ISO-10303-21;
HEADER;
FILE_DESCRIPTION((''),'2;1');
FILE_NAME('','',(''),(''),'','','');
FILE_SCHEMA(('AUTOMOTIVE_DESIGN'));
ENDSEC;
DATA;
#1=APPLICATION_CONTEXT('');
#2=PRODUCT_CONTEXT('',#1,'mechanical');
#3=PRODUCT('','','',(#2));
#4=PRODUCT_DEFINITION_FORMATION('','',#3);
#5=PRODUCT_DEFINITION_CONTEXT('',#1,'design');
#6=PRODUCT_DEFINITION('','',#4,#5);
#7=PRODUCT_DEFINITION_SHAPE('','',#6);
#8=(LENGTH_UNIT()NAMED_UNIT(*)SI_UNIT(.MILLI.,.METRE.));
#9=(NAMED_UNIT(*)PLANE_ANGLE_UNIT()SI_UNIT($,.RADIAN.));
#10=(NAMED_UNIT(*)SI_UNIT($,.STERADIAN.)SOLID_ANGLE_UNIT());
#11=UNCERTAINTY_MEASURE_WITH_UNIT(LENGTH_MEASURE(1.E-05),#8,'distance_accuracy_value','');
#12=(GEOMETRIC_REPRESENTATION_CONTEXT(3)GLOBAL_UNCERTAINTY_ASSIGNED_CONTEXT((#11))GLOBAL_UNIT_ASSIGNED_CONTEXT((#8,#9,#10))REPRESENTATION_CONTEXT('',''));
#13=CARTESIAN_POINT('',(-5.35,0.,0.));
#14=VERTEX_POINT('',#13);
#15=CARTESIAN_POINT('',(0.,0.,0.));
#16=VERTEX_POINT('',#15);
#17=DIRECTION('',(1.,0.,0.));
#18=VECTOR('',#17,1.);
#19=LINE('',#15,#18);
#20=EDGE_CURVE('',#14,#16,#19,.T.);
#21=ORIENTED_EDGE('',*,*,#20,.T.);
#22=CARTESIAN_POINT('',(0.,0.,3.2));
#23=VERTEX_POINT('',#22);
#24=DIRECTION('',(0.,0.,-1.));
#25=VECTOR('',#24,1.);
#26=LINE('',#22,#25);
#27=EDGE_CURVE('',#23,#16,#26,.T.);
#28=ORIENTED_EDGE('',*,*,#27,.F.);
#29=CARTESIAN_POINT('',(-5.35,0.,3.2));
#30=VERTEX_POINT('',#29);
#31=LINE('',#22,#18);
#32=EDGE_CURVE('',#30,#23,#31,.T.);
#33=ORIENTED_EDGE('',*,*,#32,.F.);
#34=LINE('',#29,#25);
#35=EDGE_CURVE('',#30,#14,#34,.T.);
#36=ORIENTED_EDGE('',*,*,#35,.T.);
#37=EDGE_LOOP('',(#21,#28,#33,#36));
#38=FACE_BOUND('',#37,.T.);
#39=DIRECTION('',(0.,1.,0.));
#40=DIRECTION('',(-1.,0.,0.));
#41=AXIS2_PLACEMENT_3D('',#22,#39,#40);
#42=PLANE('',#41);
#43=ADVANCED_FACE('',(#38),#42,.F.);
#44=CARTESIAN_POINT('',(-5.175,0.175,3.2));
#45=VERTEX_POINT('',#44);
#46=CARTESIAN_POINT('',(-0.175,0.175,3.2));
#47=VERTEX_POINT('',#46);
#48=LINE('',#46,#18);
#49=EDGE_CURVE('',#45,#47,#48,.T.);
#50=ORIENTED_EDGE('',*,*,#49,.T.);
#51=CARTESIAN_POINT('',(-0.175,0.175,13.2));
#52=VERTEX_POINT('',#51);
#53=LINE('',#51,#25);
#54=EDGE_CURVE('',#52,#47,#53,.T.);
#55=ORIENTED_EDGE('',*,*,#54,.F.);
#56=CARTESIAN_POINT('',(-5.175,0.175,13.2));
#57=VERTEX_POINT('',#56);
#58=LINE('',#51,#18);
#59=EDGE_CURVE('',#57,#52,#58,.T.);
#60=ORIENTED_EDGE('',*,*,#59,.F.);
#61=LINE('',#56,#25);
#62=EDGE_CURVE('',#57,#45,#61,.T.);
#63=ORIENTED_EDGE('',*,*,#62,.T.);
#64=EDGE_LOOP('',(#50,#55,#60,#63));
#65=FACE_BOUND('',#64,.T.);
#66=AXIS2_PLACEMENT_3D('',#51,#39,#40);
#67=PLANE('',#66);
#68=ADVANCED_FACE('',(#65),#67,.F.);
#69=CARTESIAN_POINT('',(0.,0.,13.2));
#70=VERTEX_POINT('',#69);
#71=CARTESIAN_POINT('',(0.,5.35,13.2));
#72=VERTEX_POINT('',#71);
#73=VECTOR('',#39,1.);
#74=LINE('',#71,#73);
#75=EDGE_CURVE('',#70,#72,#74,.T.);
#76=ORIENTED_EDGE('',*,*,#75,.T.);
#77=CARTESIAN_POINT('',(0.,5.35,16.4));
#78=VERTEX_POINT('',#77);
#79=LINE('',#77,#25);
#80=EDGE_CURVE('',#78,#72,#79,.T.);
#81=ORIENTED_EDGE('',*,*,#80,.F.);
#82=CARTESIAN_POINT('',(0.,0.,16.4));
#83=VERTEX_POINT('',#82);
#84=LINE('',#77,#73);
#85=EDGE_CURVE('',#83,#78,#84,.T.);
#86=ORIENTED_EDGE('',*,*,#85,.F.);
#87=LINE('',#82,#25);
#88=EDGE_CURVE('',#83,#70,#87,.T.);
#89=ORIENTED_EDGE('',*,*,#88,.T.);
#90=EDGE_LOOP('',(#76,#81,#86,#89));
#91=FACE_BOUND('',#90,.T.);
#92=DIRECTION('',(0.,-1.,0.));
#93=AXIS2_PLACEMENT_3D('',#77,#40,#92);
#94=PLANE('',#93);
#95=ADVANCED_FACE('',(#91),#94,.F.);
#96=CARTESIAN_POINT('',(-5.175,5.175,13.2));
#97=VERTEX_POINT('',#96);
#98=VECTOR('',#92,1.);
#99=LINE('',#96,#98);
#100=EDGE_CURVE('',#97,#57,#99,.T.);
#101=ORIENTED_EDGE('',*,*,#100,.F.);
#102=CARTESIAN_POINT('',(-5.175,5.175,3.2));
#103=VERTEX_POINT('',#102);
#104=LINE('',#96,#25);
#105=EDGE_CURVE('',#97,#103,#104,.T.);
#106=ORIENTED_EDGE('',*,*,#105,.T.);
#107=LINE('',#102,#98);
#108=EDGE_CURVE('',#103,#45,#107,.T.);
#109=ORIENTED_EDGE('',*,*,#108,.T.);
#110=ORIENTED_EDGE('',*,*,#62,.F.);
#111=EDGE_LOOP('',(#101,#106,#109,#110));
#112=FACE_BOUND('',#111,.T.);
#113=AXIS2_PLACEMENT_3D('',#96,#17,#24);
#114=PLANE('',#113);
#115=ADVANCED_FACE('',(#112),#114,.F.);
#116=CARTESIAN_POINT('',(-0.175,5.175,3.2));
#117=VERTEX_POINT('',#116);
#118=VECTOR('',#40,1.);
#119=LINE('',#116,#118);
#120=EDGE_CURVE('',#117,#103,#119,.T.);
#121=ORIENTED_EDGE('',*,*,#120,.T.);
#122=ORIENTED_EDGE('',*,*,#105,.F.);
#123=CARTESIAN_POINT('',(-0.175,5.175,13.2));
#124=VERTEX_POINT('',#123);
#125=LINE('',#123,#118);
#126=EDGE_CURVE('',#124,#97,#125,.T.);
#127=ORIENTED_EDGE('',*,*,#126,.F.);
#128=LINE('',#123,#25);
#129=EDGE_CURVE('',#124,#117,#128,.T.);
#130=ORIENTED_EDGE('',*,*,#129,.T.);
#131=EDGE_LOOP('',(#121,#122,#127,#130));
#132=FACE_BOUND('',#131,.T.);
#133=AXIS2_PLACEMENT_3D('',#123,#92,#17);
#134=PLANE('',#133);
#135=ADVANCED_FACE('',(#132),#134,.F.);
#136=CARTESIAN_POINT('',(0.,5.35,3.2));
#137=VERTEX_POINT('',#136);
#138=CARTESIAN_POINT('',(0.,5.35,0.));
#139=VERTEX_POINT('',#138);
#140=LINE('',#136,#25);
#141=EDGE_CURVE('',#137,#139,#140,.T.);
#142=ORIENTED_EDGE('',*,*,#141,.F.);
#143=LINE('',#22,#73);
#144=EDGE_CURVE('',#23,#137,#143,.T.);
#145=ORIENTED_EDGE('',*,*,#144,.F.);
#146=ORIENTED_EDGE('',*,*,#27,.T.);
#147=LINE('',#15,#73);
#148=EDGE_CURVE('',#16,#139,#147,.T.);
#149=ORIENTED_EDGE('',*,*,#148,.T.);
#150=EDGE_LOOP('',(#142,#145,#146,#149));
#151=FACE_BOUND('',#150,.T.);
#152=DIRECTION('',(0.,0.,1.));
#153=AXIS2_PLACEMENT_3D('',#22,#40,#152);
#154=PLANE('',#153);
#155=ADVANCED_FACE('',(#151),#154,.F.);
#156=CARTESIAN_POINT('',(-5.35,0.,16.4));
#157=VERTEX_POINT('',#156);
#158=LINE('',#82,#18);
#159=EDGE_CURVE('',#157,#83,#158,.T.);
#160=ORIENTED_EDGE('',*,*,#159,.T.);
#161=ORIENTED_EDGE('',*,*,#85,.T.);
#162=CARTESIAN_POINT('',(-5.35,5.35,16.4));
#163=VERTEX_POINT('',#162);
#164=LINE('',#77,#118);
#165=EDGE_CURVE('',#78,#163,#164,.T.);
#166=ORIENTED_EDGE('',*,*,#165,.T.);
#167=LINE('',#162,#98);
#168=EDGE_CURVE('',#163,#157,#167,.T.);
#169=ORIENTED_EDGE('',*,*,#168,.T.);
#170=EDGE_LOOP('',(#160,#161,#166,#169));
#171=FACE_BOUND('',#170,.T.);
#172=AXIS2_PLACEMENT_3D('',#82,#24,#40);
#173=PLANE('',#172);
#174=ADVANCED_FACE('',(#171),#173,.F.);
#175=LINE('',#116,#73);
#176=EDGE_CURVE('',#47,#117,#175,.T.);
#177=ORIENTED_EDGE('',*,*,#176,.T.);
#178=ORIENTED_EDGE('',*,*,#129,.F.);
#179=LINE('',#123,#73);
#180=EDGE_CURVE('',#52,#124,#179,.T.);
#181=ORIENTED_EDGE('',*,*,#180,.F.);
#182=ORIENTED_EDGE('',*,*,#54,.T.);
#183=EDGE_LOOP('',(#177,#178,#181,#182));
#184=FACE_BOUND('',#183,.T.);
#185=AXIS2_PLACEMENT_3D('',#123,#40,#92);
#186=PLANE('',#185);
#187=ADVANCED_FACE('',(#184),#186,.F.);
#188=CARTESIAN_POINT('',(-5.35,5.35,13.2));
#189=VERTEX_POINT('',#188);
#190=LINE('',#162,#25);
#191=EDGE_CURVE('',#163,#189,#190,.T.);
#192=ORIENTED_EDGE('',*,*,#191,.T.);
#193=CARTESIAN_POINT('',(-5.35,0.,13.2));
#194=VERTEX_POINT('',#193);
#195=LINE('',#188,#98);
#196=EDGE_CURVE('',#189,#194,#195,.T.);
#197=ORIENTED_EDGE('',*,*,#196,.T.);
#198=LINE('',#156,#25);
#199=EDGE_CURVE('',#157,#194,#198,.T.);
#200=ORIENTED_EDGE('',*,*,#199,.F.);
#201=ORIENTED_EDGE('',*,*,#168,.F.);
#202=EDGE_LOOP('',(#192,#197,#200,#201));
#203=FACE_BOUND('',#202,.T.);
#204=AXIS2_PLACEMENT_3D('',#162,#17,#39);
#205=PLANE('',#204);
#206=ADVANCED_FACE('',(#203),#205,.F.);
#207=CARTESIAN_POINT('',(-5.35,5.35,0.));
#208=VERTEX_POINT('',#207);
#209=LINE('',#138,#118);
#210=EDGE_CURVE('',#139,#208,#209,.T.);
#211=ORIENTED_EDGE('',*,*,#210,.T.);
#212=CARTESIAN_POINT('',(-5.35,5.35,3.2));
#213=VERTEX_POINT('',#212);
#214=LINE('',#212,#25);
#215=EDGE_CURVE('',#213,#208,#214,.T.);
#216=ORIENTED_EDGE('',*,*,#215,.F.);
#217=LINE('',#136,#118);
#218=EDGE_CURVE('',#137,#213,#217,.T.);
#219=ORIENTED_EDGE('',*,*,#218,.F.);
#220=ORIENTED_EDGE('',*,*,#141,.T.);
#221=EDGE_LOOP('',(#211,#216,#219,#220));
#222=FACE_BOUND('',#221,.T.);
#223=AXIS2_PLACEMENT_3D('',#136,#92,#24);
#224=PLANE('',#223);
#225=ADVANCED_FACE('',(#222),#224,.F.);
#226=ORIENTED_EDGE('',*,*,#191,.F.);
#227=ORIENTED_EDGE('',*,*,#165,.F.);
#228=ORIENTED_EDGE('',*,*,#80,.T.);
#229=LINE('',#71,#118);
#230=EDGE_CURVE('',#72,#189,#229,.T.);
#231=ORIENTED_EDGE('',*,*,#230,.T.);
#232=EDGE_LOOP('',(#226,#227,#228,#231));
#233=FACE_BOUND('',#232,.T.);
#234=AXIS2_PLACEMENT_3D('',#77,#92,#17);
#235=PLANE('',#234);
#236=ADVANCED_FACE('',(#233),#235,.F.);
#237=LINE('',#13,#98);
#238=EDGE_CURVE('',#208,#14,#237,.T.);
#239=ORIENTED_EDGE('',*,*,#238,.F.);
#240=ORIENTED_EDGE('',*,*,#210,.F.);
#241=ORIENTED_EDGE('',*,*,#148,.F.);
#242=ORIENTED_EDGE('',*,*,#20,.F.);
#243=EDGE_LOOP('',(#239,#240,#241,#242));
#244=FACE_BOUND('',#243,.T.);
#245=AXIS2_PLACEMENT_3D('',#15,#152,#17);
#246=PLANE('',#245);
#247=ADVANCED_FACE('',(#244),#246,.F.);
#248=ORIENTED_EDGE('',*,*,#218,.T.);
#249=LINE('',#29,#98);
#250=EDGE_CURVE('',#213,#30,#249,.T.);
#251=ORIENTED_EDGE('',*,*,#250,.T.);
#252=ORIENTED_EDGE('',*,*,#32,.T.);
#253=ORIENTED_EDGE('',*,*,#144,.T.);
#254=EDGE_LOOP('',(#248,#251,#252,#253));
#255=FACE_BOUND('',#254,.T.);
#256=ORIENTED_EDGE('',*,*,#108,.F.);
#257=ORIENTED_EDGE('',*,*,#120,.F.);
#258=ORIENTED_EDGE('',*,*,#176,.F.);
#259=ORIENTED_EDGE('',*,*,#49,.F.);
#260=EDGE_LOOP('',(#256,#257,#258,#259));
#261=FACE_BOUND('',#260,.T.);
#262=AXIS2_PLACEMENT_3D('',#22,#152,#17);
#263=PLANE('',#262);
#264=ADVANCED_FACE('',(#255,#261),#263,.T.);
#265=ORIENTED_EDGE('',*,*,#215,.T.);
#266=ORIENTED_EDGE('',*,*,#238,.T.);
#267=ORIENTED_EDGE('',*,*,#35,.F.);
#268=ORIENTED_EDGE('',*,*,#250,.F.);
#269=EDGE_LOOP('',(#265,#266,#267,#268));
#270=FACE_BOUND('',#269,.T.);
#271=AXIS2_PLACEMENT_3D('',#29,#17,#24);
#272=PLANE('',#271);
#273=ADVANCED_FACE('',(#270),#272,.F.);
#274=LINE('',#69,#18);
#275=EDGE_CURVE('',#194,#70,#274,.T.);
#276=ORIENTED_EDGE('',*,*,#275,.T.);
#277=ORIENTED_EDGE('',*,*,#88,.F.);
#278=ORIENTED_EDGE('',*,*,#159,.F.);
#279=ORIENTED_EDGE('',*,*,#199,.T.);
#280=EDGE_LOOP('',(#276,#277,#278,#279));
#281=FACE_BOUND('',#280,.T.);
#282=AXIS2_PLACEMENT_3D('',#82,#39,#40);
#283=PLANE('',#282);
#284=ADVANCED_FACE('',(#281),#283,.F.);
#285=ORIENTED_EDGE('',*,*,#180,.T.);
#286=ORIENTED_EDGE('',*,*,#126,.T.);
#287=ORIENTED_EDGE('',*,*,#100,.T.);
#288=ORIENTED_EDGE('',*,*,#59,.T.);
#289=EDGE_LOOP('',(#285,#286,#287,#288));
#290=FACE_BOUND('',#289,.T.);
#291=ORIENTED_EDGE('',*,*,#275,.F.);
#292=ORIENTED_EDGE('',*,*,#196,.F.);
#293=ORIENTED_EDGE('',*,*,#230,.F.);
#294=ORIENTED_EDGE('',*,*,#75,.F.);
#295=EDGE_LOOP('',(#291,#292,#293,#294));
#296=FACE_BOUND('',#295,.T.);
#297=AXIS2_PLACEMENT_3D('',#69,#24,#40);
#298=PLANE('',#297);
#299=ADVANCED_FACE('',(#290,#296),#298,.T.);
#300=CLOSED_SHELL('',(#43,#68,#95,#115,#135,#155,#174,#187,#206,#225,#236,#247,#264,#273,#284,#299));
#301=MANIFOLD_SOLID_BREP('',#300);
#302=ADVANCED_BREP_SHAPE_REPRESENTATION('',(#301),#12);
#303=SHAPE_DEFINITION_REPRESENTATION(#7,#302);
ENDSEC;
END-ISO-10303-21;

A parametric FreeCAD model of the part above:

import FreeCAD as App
import Part
import Sketcher
Q = App.Units.Quantity


def add_polygon(sketch, points):
    """Adds a closed chain of lines whose ends are joined by coincident constraints."""
    first, n = sketch.GeometryCount, len(points)
    for a, b in zip(points, points[1:] + points[:1]):
        sketch.addGeometry(Part.LineSegment(App.Vector(*a, 0), App.Vector(*b, 0)), False)
    for i in range(n):
        sketch.addConstraint(Sketcher.Constraint("Coincident", first + i, 2, first + (i + 1) % n, 1))

doc = App.newDocument("Part")
body = doc.addObject("PartDesign::Body", "Body")

sketch1 = body.newObject("Sketcher::SketchObject", "Sketch")
sketch1.AttachmentSupport = (doc.getObject("XY_Plane"), [""])
sketch1.MapMode = "FlatFace"
add_polygon(sketch1, [(-5, 5), (-5, 0), (0, 0), (0, 5)])
sketch1.addConstraint([
    Sketcher.Constraint("Vertical", 0),
    Sketcher.Constraint("Horizontal", 1),
    Sketcher.Constraint("Vertical", 2),
    Sketcher.Constraint("Horizontal", 3),
    Sketcher.Constraint("Coincident", 1, 2, -1, 1),
    Sketcher.Constraint("Equal", 3, 0),
    Sketcher.Constraint("DistanceX", 1, 1, 1, 2, Q("5.35 mm")),
])
pad1 = body.newObject("PartDesign::Pad", "Pad")
pad1.Profile = sketch1
pad1.Length = 3.2

sketch2 = body.newObject("Sketcher::SketchObject", "Sketch001")
sketch2.AttachmentSupport = (doc.getObject("XY_Plane"), [""])
sketch2.MapMode = "FlatFace"
sketch2.AttachmentOffset = App.Placement(App.Vector(0, 0, 3.2), App.Rotation())
add_polygon(sketch2, [(-5, 5), (-5, 0), (0, 0), (0, 5)])
sketch2.addConstraint([
    Sketcher.Constraint("Vertical", 0),
    Sketcher.Constraint("Horizontal", 1),
    Sketcher.Constraint("Vertical", 2),
    Sketcher.Constraint("Horizontal", 3),
    Sketcher.Constraint("Equal", 3, 0),
    Sketcher.Constraint("DistanceX", 1, 1, 1, 2, Q("5 mm")),
    Sketcher.Constraint("DistanceX", 0, 2, -1, 1, Q("5.175 mm")),
    Sketcher.Constraint("DistanceY", -1, 1, 0, 2, Q("0.175 mm")),
])
pad2 = body.newObject("PartDesign::Pad", "Pad001")
pad2.Profile = sketch2
pad2.Length = 10

sketch3 = body.newObject("Sketcher::SketchObject", "Sketch002")
sketch3.AttachmentSupport = (doc.getObject("XY_Plane"), [""])
sketch3.MapMode = "FlatFace"
sketch3.AttachmentOffset = App.Placement(App.Vector(0, 0, 13.2), App.Rotation())
add_polygon(sketch3, [(-5, 5), (-5, 0), (0, 0), (0, 5)])
sketch3.addConstraint([
    Sketcher.Constraint("Vertical", 0),
    Sketcher.Constraint("Horizontal", 1),
    Sketcher.Constraint("Vertical", 2),
    Sketcher.Constraint("Horizontal", 3),
    Sketcher.Constraint("Coincident", 1, 2, -1, 1),
    Sketcher.Constraint("Equal", 3, 0),
    Sketcher.Constraint("DistanceX", 1, 1, 1, 2, Q("5.35 mm")),
])
pad3 = body.newObject("PartDesign::Pad", "Pad002")
pad3.Profile = sketch3
pad3.Length = 3.2

doc.recompute()
